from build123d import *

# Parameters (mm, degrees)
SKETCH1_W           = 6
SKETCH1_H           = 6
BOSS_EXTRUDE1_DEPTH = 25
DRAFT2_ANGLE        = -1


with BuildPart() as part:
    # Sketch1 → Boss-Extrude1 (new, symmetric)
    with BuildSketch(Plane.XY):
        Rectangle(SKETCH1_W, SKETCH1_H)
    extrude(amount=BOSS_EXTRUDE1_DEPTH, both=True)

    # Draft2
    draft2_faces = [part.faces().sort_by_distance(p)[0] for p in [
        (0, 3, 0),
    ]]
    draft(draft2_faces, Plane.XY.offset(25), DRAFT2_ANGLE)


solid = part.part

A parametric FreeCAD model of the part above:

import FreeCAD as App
import Part
import Sketcher


def faces_at(feature, points):
    """Names of the faces that lie closest to the given points."""
    faces = feature.Shape.Faces
    near = lambda p: min(range(len(faces)), key=lambda i: faces[i].distToShape(Part.Vertex(*p))[0])
    return sorted({f"Face{near(p) + 1}" for p in points})

doc = App.newDocument("Part")
body = doc.addObject("PartDesign::Body", "Body")

# Sketch on XY plane
sketch1 = body.newObject("Sketcher::SketchObject", "Sketch")
sketch1.AttachmentSupport = (doc.getObject("XY_Plane"), [""])
sketch1.MapMode = "FlatFace"
sketch1.addGeometry(Part.LineSegment(App.Vector(-3, 3, 0), App.Vector(-3, -3, 0)), False)
sketch1.addGeometry(Part.LineSegment(App.Vector(-3, -3, 0), App.Vector(3, -3, 0)), False)
sketch1.addGeometry(Part.LineSegment(App.Vector(3, -3, 0), App.Vector(3, 3, 0)), False)
sketch1.addGeometry(Part.LineSegment(App.Vector(3, 3, 0), App.Vector(-3, 3, 0)), False)
sketch1.addConstraint(Sketcher.Constraint("Coincident", 0, 2, 1, 1))
sketch1.addConstraint(Sketcher.Constraint("Coincident", 1, 2, 2, 1))
sketch1.addConstraint(Sketcher.Constraint("Coincident", 2, 2, 3, 1))
sketch1.addConstraint(Sketcher.Constraint("Coincident", 3, 2, 0, 1))
sketch1.addConstraint(Sketcher.Constraint("Vertical", 0))
sketch1.addConstraint(Sketcher.Constraint("Horizontal", 1))
sketch1.addConstraint(Sketcher.Constraint("Vertical", 2))
sketch1.addConstraint(Sketcher.Constraint("Horizontal", 3))
sketch1.addConstraint(Sketcher.Constraint("Symmetric", 0, 2, 2, 2, -1, 1))
sketch1.addConstraint(Sketcher.Constraint("Equal", 3, 0))
sketch1.addConstraint(Sketcher.Constraint("DistanceX", 1, 1, 1, 2, 6.0))
pad1 = body.newObject("PartDesign::Pad", "Pad")
pad1.Profile = sketch1
pad1.Length = 50
pad1.Midplane = True
doc.recompute()

datumplane = body.newObject("PartDesign::Plane", "DatumPlane")
datumplane.AttachmentSupport = (doc.getObject("XY_Plane"), [""])
datumplane.MapMode = "FlatFace"
datumplane.AttachmentOffset = App.Placement(App.Vector(0, 0, 25), App.Rotation())
draft = body.newObject("PartDesign::Draft", "Draft")
draft.Base = (pad1, faces_at(pad1, [(0, 3, 0)]))
draft.NeutralPlane = (datumplane, [""])
draft.Angle = 1
draft.Reversed = True

doc.recompute()
